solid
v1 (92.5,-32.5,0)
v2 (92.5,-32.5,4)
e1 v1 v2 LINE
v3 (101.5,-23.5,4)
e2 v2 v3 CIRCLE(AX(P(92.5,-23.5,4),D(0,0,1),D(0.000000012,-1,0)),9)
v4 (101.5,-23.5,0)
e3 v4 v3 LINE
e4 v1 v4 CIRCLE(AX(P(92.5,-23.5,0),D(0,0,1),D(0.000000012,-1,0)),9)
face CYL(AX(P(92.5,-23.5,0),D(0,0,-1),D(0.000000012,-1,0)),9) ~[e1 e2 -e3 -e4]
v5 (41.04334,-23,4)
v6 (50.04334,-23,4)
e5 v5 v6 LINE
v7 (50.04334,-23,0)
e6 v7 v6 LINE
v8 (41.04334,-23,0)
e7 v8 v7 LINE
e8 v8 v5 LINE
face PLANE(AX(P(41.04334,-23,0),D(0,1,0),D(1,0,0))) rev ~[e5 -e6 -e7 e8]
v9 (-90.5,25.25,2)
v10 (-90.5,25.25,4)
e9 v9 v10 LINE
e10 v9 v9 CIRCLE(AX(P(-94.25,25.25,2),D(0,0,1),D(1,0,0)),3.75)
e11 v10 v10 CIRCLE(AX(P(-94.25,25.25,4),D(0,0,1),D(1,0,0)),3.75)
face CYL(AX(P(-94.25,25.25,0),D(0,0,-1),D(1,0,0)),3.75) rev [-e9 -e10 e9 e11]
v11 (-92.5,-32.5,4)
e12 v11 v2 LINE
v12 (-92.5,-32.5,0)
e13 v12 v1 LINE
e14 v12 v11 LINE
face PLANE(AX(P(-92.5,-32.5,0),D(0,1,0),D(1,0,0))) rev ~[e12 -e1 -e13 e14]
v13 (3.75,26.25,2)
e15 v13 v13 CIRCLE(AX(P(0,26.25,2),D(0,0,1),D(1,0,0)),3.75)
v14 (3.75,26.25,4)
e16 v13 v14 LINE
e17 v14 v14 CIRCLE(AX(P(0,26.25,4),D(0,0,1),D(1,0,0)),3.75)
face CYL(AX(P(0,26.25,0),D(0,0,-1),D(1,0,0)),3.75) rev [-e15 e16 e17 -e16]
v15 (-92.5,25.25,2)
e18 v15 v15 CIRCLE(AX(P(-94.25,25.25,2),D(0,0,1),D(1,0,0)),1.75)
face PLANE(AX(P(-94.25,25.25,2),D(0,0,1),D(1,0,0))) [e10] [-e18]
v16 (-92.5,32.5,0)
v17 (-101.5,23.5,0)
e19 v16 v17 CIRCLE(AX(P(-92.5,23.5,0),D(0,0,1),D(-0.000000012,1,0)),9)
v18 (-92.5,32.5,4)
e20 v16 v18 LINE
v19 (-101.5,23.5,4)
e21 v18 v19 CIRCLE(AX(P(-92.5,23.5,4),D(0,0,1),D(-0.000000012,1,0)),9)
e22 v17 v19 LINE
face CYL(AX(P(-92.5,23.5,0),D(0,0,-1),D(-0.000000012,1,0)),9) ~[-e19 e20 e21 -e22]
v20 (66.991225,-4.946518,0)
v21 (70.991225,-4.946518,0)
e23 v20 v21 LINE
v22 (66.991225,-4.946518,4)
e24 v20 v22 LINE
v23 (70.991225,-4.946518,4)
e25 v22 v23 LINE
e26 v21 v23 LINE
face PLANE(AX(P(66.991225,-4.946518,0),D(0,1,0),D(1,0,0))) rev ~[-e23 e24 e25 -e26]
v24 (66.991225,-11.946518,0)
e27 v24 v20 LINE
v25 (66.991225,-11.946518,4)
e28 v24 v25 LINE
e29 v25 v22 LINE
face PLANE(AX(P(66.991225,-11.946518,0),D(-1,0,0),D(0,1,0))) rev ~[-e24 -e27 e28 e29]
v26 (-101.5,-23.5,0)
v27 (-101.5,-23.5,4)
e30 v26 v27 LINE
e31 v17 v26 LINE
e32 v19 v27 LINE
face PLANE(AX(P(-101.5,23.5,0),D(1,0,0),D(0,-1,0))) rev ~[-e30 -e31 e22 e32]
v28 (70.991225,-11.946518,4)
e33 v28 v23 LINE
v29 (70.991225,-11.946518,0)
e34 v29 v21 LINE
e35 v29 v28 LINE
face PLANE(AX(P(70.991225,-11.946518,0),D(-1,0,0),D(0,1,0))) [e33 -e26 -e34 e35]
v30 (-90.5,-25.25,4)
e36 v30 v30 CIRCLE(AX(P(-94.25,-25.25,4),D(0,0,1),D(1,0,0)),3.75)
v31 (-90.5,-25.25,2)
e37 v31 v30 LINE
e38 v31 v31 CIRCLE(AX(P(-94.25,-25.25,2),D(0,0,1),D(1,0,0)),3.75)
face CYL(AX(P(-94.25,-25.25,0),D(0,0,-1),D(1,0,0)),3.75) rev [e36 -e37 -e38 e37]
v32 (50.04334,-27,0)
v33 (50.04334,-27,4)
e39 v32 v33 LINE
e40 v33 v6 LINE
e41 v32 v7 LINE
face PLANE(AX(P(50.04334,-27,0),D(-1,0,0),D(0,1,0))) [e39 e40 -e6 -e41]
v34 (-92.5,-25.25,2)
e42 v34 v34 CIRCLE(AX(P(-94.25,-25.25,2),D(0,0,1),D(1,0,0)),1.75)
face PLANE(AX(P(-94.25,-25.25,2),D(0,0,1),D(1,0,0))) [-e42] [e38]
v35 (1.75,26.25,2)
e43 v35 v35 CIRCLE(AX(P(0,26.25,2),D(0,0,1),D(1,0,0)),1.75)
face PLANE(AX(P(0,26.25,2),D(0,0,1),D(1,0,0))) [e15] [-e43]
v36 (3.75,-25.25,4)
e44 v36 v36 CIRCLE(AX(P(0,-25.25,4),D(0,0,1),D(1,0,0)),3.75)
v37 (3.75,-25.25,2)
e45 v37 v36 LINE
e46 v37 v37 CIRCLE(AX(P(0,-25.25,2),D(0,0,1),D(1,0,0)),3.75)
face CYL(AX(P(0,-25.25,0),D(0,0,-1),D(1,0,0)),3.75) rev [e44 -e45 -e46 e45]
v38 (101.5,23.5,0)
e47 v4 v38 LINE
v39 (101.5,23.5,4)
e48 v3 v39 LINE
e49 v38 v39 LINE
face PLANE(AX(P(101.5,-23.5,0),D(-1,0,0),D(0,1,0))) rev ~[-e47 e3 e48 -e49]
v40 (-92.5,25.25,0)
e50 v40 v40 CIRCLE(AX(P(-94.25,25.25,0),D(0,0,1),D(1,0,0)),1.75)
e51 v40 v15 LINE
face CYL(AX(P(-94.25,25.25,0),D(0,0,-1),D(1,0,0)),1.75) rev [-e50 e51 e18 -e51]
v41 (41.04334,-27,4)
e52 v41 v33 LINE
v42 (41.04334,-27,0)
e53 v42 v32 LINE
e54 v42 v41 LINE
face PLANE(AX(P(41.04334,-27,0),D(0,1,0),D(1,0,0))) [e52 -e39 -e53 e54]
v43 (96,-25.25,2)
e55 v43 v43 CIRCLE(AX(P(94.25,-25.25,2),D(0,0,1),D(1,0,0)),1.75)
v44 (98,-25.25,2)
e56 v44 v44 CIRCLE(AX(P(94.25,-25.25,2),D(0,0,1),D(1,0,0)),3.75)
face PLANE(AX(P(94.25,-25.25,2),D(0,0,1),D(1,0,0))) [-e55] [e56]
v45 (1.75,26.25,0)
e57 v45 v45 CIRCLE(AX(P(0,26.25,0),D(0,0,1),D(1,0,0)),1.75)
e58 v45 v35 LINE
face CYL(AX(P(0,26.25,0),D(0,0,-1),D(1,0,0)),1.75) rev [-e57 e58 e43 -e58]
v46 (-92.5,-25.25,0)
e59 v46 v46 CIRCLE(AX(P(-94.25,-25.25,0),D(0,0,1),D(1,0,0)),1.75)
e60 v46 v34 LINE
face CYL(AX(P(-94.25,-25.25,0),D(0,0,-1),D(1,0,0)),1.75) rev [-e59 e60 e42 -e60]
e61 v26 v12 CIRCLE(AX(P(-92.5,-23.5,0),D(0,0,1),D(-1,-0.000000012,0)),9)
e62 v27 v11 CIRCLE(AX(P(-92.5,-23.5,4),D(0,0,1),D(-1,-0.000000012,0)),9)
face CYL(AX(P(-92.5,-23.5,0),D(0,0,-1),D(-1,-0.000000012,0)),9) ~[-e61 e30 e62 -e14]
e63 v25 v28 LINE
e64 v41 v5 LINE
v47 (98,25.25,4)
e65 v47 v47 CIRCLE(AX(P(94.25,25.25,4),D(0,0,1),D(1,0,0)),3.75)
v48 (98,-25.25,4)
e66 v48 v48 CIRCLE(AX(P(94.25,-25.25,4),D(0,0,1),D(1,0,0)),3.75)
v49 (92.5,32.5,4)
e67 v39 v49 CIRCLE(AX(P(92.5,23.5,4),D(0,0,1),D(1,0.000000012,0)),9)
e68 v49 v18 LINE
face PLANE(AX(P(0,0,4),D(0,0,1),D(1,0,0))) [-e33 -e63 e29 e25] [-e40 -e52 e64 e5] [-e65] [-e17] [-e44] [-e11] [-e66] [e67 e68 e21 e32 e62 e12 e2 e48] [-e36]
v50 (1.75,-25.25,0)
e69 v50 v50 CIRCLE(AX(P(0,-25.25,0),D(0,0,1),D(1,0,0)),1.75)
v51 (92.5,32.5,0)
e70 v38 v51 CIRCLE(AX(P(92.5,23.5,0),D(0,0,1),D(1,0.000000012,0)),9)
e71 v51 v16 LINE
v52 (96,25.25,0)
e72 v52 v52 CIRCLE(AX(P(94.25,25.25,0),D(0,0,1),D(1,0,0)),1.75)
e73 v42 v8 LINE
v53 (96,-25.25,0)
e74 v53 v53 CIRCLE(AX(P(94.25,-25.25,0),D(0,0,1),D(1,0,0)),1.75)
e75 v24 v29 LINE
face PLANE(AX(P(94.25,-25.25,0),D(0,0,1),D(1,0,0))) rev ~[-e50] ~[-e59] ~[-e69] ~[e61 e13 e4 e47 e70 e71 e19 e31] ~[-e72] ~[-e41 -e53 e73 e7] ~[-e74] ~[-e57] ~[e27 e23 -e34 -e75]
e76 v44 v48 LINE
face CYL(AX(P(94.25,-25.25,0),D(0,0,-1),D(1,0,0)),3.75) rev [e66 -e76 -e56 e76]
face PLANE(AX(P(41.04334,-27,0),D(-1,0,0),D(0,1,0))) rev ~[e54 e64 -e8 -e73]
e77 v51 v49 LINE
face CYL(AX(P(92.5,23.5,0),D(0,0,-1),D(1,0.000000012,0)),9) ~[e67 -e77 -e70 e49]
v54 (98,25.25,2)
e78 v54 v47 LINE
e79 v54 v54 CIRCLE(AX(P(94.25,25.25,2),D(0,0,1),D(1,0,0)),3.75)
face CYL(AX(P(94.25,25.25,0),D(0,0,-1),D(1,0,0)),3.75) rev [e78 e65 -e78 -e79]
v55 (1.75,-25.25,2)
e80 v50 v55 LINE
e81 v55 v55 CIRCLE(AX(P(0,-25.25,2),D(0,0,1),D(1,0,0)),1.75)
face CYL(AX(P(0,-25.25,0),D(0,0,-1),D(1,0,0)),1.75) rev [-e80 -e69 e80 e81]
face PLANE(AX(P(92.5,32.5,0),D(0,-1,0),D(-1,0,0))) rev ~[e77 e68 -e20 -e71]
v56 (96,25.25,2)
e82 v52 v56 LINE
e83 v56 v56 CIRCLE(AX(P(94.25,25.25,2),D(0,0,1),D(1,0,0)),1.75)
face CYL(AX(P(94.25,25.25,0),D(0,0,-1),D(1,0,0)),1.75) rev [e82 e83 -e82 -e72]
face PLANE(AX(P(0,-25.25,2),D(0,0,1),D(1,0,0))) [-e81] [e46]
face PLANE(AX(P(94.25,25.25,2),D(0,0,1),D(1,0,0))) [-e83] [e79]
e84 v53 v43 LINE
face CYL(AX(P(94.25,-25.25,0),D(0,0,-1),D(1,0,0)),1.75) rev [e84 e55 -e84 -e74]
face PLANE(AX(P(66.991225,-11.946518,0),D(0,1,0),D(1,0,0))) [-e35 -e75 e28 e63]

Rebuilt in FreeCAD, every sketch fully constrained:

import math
import FreeCAD as App
import Part
import Sketcher
from FreeCAD import Vector
Q = App.Units.Quantity


def add_polygon(sketch, points):
    """Adds a closed chain of lines whose ends are joined by coincident constraints."""
    first, n = sketch.GeometryCount, len(points)
    for a, b in zip(points, points[1:] + points[:1]):
        sketch.addGeometry(Part.LineSegment(App.Vector(*a, 0), App.Vector(*b, 0)), False)
    for i in range(n):
        sketch.addConstraint(Sketcher.Constraint("Coincident", first + i, 2, first + (i + 1) % n, 1))

doc = App.newDocument("Part")
body = doc.addObject("PartDesign::Body", "Body")

sketch1 = body.newObject("Sketcher::SketchObject", "Sketch")
sketch1.AttachmentSupport = (doc.getObject("XY_Plane"), [""])
sketch1.MapMode = "FlatFace"
sketch1.addGeometry(Part.LineSegment(Vector(-92.5, -32.5, 0), Vector(92.5, -32.5, 0)), False)
sketch1.addGeometry(Part.ArcOfCircle(Part.Circle(Vector(92.5, -23.5, 0), Vector(0, 0, 1), 9), math.radians(-90), math.radians(0)), False)
sketch1.addGeometry(Part.LineSegment(Vector(101.5, -23.5, 0), Vector(101.5, 23.5, 0)), False)
sketch1.addGeometry(Part.ArcOfCircle(Part.Circle(Vector(92.5, 23.5, 0), Vector(0, 0, 1), 9), math.radians(0), math.radians(90)), False)
sketch1.addGeometry(Part.LineSegment(Vector(92.5, 32.5, 0), Vector(-92.5, 32.5, 0)), False)
sketch1.addGeometry(Part.ArcOfCircle(Part.Circle(Vector(-92.5, 23.5, 0), Vector(0, 0, 1), 9), math.radians(90), math.radians(180)), False)
sketch1.addGeometry(Part.LineSegment(Vector(-101.5, 23.5, 0), Vector(-101.5, -23.5, 0)), False)
sketch1.addGeometry(Part.ArcOfCircle(Part.Circle(Vector(-92.5, -23.5, 0), Vector(0, 0, 1), 9), math.radians(-180), math.radians(-90)), False)
sketch1.addGeometry(Part.Circle(Vector(-94.2, -25.2, 0), Vector(0, 0, 1), 3.8), False)
sketch1.addGeometry(Part.Circle(Vector(0, -25.2, 0), Vector(0, 0, 1), 3.8), False)
add_polygon(sketch1, [(50, -27), (41, -27), (41, -23), (50, -23)])
sketch1.addGeometry(Part.Circle(Vector(94.2, -25.2, 0), Vector(0, 0, 1), 3.8), False)
add_polygon(sketch1, [(71, -11.9), (67, -11.9), (67, -4.9), (71, -4.9)])
sketch1.addGeometry(Part.Circle(Vector(-94.2, 25.2, 0), Vector(0, 0, 1), 3.8), False)
sketch1.addGeometry(Part.Circle(Vector(0, 26.2, 0), Vector(0, 0, 1), 3.8), False)
sketch1.addGeometry(Part.Circle(Vector(94.2, 25.2, 0), Vector(0, 0, 1), 3.8), False)
sketch1.addConstraint([
    Sketcher.Constraint("Tangent", 0, 2, 1, 1),
    Sketcher.Constraint("Tangent", 1, 2, 2, 1),
    Sketcher.Constraint("Tangent", 2, 2, 3, 1),
    Sketcher.Constraint("Tangent", 3, 2, 4, 1),
    Sketcher.Constraint("Tangent", 4, 2, 5, 1),
    Sketcher.Constraint("Tangent", 5, 2, 6, 1),
    Sketcher.Constraint("Tangent", 6, 2, 7, 1),
    Sketcher.Constraint("Tangent", 7, 2, 0, 1),
    Sketcher.Constraint("Horizontal", 0),
    Sketcher.Constraint("Vertical", 2),
    Sketcher.Constraint("Horizontal", 4),
    Sketcher.Constraint("Vertical", 6),
    Sketcher.Constraint("Horizontal", 10),
    Sketcher.Constraint("Vertical", 11),
    Sketcher.Constraint("Horizontal", 12),
    Sketcher.Constraint("Vertical", 13),
    Sketcher.Constraint("Horizontal", 15),
    Sketcher.Constraint("Vertical", 16),
    Sketcher.Constraint("Horizontal", 17),
    Sketcher.Constraint("Vertical", 18),
    Sketcher.Constraint("Equal", 1, 3),
    Sketcher.Constraint("Equal", 3, 5),
    Sketcher.Constraint("Equal", 5, 7),
    Sketcher.Constraint("Equal", 8, 9),
    Sketcher.Constraint("Equal", 9, 14),
    Sketcher.Constraint("Equal", 14, 19),
    Sketcher.Constraint("Equal", 19, 20),
    Sketcher.Constraint("Equal", 20, 21),
    Sketcher.Constraint("Symmetric", 1, 3, 5, 3, -1, 1),
    Sketcher.Constraint("Symmetric", 14, 3, 19, 3, -1, 1),
    Sketcher.Constraint("Symmetric", 8, 3, 21, 3, -1, 1),
    Sketcher.Constraint("Symmetric", 8, 3, 14, 3, -2),
    Sketcher.Constraint("PointOnObject", 9, 3, -2),
    Sketcher.Constraint("PointOnObject", 20, 3, -2),
    Sketcher.Constraint("Horizontal", 8, 3, 9, 3),
    Sketcher.Constraint("Equal", 17, 11),
    Sketcher.Constraint("Radius", 1, Q("9 mm")),
    Sketcher.Constraint("Diameter", 8, Q("7.5 mm")),
    Sketcher.Constraint("DistanceX", 0, 1, 0, 2, Q("185 mm")),
    Sketcher.Constraint("DistanceX", 10, 2, 10, 1, Q("9 mm")),
    Sketcher.Constraint("DistanceX", 15, 2, 15, 1, Q("4 mm")),
    Sketcher.Constraint("DistanceY", 2, 1, 2, 2, Q("47 mm")),
    Sketcher.Constraint("DistanceY", 16, 1, 16, 2, Q("7 mm")),
    Sketcher.Constraint("DistanceY", 10, 2, -1, 1, Q("27 mm")),
    Sketcher.Constraint("DistanceY", 19, 3, 20, 3, Q("1 mm")),
    Sketcher.Constraint("DistanceX", 8, 3, 14, 3, Q("188.5 mm")),
    Sketcher.Constraint("DistanceY", 8, 3, 19, 3, Q("50.5 mm")),
    Sketcher.Constraint("DistanceX", -1, 1, 10, 2, Q("41.04334 mm")),
    Sketcher.Constraint("DistanceY", 16, 2, -1, 1, Q("4.946518 mm")),
    Sketcher.Constraint("DistanceX", -1, 1, 15, 2, Q("66.991225 mm")),
])
pad1 = body.newObject("PartDesign::Pad", "Pad")
pad1.Profile = sketch1
pad1.Length = 4

sketch2 = body.newObject("Sketcher::SketchObject", "Sketch001")
sketch2.AttachmentSupport = (doc.getObject("XY_Plane"), [""])
sketch2.MapMode = "FlatFace"
sketch2.addGeometry([
    Part.Circle(Vector(94.2, -25.2, 0), Vector(0, 0, 1), 3.8),
    Part.Circle(Vector(94.2, -25.2, 0), Vector(0, 0, 1), 1.8),
    Part.Circle(Vector(0, -25.2, 0), Vector(0, 0, 1), 3.8),
    Part.Circle(Vector(0, -25.2, 0), Vector(0, 0, 1), 1.8),
    Part.Circle(Vector(0, 26.2, 0), Vector(0, 0, 1), 3.8),
    Part.Circle(Vector(0, 26.2, 0), Vector(0, 0, 1), 1.8),
    Part.Circle(Vector(94.2, 25.2, 0), Vector(0, 0, 1), 3.8),
    Part.Circle(Vector(94.2, 25.2, 0), Vector(0, 0, 1), 1.8),
    Part.Circle(Vector(-94.2, -25.2, 0), Vector(0, 0, 1), 3.8),
    Part.Circle(Vector(-94.2, -25.2, 0), Vector(0, 0, 1), 1.8),
    Part.Circle(Vector(-94.2, 25.2, 0), Vector(0, 0, 1), 3.8),
    Part.Circle(Vector(-94.2, 25.2, 0), Vector(0, 0, 1), 1.8),
], False)
sketch2.addConstraint([
    Sketcher.Constraint("Coincident", 1, 3, 0, 3),
    Sketcher.Constraint("Coincident", 3, 3, 2, 3),
    Sketcher.Constraint("Coincident", 5, 3, 4, 3),
    Sketcher.Constraint("Coincident", 7, 3, 6, 3),
    Sketcher.Constraint("Coincident", 9, 3, 8, 3),
    Sketcher.Constraint("Coincident", 11, 3, 10, 3),
    Sketcher.Constraint("Equal", 0, 2),
    Sketcher.Constraint("Equal", 1, 3),
    Sketcher.Constraint("Equal", 2, 4),
    Sketcher.Constraint("Equal", 3, 5),
    Sketcher.Constraint("Equal", 4, 6),
    Sketcher.Constraint("Equal", 5, 7),
    Sketcher.Constraint("Equal", 6, 8),
    Sketcher.Constraint("Equal", 7, 9),
    Sketcher.Constraint("Equal", 8, 10),
    Sketcher.Constraint("Equal", 9, 11),
    Sketcher.Constraint("Symmetric", 6, 3, 8, 3, -1, 1),
    Sketcher.Constraint("Symmetric", 0, 3, 10, 3, -1, 1),
    Sketcher.Constraint("Symmetric", 0, 3, 8, 3, -2),
    Sketcher.Constraint("PointOnObject", 2, 3, -2),
    Sketcher.Constraint("PointOnObject", 4, 3, -2),
    Sketcher.Constraint("Horizontal", 1, 3, 2, 3),
    Sketcher.Constraint("Diameter", 0, Q("7.5 mm")),
    Sketcher.Constraint("Diameter", 1, Q("3.5 mm")),
    Sketcher.Constraint("DistanceY", 6, 3, 4, 3, Q("1 mm")),
    Sketcher.Constraint("DistanceY", 2, 3, 4, 3, Q("51.5 mm")),
    Sketcher.Constraint("DistanceX", 8, 3, 0, 3, Q("188.5 mm")),
])
pad2 = body.newObject("PartDesign::Pad", "Pad001")
pad2.Profile = sketch2
pad2.Length = 2

doc.recompute()
